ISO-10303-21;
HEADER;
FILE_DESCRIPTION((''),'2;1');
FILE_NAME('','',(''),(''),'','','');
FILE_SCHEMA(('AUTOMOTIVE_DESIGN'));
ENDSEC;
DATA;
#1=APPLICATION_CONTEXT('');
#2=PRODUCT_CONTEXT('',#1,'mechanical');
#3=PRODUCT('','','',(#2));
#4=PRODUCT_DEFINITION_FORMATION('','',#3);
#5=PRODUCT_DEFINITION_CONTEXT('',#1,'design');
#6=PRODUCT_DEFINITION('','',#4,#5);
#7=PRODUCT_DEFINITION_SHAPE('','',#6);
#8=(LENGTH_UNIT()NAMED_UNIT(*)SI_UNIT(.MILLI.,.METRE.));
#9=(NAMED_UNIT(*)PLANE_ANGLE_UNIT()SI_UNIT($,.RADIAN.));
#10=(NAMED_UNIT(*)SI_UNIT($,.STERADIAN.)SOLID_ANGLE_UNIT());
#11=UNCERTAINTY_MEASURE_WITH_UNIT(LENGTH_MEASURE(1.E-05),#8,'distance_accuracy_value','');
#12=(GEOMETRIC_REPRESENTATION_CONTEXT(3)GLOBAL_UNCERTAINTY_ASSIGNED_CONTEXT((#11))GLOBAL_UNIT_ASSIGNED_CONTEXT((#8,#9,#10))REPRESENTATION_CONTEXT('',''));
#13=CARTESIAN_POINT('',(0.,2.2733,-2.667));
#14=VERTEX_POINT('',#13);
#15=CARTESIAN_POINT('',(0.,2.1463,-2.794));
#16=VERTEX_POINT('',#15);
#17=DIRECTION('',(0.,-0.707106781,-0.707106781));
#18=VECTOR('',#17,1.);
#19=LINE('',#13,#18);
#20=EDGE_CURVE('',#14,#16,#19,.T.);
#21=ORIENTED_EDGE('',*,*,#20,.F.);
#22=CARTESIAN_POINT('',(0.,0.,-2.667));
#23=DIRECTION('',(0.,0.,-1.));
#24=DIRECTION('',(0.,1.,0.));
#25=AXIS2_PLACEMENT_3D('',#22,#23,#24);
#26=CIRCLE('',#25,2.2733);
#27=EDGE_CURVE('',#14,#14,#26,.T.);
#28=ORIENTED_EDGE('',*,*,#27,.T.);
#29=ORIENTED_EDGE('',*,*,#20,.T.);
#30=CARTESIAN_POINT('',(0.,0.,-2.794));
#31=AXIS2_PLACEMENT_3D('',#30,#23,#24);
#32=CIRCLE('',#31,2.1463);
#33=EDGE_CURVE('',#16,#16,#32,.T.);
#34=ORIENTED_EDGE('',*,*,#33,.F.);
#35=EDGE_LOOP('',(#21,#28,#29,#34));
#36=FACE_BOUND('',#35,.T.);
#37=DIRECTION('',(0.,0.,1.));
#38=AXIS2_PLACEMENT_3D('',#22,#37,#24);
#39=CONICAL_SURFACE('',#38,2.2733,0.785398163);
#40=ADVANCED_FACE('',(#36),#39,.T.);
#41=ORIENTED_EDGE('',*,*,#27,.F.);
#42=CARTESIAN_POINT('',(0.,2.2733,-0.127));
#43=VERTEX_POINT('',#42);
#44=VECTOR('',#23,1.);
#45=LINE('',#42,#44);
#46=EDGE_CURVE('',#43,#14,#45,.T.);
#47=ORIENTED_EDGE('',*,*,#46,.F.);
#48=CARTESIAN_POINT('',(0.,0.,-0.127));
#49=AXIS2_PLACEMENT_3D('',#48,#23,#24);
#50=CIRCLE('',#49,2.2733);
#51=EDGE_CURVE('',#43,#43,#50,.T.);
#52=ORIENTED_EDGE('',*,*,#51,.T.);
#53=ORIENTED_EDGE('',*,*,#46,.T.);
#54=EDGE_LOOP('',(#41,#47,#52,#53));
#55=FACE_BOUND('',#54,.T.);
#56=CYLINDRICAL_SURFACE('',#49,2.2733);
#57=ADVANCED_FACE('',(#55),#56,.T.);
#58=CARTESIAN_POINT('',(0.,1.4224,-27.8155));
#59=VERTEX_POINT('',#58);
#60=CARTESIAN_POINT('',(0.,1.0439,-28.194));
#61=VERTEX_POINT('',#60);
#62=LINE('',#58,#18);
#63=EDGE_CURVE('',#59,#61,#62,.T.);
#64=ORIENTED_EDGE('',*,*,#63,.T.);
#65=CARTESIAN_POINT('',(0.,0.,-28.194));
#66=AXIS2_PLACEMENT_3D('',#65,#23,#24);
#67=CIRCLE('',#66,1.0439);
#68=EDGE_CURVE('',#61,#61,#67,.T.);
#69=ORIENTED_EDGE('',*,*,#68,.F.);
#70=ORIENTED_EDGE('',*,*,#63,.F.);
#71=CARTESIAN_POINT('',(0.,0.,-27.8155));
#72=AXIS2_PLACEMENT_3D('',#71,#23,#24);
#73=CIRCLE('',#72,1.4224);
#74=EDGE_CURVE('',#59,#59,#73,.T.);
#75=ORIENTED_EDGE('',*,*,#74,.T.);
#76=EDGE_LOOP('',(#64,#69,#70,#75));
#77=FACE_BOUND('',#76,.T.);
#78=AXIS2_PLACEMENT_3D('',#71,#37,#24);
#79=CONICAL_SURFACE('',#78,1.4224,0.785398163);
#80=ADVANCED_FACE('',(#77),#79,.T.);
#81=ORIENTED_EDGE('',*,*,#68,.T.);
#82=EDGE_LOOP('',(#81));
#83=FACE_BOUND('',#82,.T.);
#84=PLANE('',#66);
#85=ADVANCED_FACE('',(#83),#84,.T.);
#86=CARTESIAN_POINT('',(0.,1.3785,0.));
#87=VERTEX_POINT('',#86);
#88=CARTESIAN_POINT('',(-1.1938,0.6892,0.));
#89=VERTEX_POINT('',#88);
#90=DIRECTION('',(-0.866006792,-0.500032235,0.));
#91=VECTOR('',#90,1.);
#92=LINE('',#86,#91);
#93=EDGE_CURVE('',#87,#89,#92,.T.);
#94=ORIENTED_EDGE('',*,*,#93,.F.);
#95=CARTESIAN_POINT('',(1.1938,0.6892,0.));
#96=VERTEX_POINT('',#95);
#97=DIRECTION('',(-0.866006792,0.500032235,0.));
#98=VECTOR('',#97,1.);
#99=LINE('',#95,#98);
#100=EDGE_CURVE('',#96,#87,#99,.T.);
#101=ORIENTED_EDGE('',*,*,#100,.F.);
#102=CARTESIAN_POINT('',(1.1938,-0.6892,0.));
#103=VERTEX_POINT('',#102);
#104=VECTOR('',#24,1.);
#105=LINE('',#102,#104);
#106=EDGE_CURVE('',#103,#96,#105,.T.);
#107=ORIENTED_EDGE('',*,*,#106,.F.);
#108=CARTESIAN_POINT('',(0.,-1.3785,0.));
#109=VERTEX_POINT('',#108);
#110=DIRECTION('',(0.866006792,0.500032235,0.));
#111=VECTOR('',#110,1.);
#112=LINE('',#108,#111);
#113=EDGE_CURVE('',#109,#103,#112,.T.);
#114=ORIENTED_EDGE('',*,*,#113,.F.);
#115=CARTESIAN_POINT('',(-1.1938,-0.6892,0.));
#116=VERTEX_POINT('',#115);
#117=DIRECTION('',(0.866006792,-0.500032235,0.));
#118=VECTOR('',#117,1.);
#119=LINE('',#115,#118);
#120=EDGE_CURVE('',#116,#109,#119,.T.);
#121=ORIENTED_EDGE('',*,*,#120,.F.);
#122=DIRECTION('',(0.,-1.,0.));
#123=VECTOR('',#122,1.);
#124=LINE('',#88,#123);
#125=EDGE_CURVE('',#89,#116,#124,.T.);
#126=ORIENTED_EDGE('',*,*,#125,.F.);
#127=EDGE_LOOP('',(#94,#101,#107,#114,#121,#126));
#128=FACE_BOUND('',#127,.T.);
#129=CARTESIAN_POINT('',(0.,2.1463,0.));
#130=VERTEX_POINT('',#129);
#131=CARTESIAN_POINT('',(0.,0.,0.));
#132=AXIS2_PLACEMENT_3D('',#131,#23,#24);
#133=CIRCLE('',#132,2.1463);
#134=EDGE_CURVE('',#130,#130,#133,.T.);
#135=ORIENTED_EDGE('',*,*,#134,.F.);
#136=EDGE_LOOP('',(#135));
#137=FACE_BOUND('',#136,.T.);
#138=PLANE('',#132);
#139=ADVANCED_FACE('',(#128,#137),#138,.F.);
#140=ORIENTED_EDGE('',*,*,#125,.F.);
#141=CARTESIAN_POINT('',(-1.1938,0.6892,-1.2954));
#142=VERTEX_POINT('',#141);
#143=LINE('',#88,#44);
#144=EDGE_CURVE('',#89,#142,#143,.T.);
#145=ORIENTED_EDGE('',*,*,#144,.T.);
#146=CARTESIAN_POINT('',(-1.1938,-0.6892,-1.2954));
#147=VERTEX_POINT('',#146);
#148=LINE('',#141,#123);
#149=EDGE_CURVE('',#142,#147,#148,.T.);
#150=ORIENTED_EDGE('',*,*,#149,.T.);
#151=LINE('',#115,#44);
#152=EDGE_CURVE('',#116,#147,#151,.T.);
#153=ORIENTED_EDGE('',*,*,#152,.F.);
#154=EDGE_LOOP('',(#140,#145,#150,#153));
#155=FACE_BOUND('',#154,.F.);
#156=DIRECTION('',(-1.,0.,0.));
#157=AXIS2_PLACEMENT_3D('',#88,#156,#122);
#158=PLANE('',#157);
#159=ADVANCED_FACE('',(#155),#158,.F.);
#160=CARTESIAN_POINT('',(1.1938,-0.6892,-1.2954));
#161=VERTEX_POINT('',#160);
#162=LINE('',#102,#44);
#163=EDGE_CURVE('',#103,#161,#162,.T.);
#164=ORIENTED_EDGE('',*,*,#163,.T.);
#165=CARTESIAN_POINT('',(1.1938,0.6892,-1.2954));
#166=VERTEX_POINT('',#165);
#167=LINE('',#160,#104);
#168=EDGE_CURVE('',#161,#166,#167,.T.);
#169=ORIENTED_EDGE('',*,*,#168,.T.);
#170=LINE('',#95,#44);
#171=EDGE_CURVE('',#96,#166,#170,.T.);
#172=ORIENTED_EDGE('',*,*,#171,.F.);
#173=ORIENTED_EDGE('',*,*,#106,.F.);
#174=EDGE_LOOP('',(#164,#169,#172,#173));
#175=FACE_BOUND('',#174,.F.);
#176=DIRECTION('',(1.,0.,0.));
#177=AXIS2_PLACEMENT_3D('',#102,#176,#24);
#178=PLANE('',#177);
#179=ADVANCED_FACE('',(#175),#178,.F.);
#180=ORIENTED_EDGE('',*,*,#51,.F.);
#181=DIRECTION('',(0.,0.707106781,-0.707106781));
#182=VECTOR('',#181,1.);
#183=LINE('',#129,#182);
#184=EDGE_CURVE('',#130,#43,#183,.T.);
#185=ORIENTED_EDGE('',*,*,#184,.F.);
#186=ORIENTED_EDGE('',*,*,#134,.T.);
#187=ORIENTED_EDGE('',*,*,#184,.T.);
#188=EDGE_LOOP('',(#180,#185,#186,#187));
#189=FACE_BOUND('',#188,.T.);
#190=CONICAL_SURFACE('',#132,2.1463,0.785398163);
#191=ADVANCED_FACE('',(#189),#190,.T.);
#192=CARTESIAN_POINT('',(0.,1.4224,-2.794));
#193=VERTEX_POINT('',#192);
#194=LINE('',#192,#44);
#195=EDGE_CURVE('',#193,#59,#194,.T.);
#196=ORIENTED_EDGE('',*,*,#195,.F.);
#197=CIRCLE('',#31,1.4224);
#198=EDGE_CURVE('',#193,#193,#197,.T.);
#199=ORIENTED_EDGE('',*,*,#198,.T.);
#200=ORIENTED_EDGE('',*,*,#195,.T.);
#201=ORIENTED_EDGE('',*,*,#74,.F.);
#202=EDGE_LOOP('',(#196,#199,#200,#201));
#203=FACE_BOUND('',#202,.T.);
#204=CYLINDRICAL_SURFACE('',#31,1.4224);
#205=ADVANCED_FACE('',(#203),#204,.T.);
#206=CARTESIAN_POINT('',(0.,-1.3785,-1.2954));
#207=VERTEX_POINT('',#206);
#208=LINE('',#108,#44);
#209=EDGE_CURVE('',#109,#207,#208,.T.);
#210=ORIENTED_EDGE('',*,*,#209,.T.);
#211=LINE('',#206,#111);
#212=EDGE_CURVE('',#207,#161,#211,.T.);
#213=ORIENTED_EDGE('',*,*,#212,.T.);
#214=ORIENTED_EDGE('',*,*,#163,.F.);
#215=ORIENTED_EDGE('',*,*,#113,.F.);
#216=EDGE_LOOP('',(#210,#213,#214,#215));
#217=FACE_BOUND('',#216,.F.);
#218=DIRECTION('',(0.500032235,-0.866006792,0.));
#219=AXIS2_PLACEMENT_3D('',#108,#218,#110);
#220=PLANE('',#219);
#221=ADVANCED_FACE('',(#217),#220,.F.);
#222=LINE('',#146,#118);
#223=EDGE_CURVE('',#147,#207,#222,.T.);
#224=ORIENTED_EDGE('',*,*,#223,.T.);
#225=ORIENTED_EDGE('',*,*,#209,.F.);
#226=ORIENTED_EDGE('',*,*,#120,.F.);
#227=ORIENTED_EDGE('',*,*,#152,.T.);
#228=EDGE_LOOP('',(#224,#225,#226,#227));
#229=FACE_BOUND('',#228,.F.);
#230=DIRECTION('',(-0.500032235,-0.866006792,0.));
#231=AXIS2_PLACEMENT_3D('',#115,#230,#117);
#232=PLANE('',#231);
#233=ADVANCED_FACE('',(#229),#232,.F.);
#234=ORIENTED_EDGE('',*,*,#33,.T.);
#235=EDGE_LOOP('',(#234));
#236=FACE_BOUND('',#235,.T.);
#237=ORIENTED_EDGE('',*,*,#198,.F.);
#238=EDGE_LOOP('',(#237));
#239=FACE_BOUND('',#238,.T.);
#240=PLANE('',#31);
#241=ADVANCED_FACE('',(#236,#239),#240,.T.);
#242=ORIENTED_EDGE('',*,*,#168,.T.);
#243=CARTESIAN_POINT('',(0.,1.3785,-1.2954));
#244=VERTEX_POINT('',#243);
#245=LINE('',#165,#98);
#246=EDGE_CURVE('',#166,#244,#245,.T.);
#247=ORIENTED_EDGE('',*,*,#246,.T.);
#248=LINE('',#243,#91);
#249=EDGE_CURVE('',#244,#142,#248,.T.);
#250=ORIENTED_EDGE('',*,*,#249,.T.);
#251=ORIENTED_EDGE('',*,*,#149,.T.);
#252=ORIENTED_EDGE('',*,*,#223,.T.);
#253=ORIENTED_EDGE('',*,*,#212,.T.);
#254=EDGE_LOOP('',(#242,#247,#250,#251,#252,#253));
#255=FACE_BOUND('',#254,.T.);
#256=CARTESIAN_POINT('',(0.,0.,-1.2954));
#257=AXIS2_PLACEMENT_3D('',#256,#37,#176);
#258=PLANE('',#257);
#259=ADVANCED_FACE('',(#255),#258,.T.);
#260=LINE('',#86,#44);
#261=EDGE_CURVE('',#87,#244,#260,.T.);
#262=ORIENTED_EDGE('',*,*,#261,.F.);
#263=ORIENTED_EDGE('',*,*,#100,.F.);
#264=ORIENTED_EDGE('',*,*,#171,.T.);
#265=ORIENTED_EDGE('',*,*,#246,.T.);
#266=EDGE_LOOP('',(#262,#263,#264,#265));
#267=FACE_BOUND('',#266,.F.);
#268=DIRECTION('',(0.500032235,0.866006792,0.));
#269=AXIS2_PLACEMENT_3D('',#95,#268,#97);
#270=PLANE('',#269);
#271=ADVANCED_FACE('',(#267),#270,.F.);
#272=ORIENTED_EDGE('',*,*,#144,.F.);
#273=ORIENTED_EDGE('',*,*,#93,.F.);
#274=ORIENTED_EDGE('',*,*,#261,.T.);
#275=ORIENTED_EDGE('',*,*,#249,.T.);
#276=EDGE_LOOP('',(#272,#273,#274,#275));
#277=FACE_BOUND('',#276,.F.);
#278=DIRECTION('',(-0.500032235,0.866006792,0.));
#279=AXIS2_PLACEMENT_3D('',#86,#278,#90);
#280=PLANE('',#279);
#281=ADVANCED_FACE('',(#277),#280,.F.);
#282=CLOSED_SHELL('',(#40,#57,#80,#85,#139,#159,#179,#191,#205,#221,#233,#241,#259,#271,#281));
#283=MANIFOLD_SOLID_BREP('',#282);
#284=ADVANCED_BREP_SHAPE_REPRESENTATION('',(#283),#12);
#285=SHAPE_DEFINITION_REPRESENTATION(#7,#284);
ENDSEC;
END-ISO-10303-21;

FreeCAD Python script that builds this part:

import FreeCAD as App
import Part
import Sketcher
from FreeCAD import Vector
Q = App.Units.Quantity


def add_polygon(sketch, points):
    """Adds a closed chain of lines whose ends are joined by coincident constraints."""
    first, n = sketch.GeometryCount, len(points)
    for a, b in zip(points, points[1:] + points[:1]):
        sketch.addGeometry(Part.LineSegment(App.Vector(*a, 0), App.Vector(*b, 0)), False)
    for i in range(n):
        sketch.addConstraint(Sketcher.Constraint("Coincident", first + i, 2, first + (i + 1) % n, 1))

doc = App.newDocument("Part")
params = doc.addObject("Spreadsheet::Sheet", "Params")
for row, (alias, value) in enumerate([
    ("sketch1_height", "0.1 in"),
    ("sketch1_height2", "1.11 in"),
    ("revolution_angle", "360 deg"),
    ("pocket1_length", "0.051 in"),
], start=1):
    params.set(f"A{row}", alias)
    params.set(f"B{row}", "=" + value)
    params.setAlias(f"B{row}", alias)

body = doc.addObject("PartDesign::Body", "Body")

sketch1 = body.newObject("Sketcher::SketchObject", "Sketch")
sketch1.AttachmentSupport = (doc.getObject("YZ_Plane"), [""])
sketch1.MapMode = "FlatFace"
add_polygon(sketch1, [(0, 0), (0, -28.19), (1.04, -28.19), (1.42, -27.82), (1.42, -2.79), (2.15, -2.79), (2.27, -2.67), (2.27, -0.13), (2.15, 0)])
sketch1.addConstraint([
    Sketcher.Constraint("Vertical", 0),
    Sketcher.Constraint("Horizontal", 1),
    Sketcher.Constraint("Vertical", 3),
    Sketcher.Constraint("Horizontal", 4),
    Sketcher.Constraint("Vertical", 6),
    Sketcher.Constraint("Horizontal", 8),
    Sketcher.Constraint("Coincident", 8, 2, -1, 1),
    Sketcher.Constraint("Parallel", 2, 5),
    Sketcher.Constraint("Perpendicular", 5, 7),
    Sketcher.Constraint("Vertical", 4, 2, 7, 2),
    Sketcher.Constraint("Equal", 5, 7),
    Sketcher.Constraint("DistanceY", 6, 1, 6, 2, Q("0.1 in")),
    Sketcher.Constraint("DistanceY", 1, 2, 3, 2, Q("1 in")),
    Sketcher.Constraint("DistanceY", 0, 2, 0, 1, Q("1.11 in")),
    Sketcher.Constraint("DistanceX", 1, 1, 1, 2, Q("0.0411 in")),
    Sketcher.Constraint("DistanceX", 4, 1, 4, 2, Q("0.0285 in")),
    Sketcher.Constraint("DistanceX", 8, 2, 8, 1, Q("0.0845 in")),
])
sketch1.setExpression("Constraints[20]", "Params.sketch1_height")
sketch1.setExpression("Constraints[22]", "Params.sketch1_height2")
revolution = body.newObject("PartDesign::Revolution", "Revolution")
revolution.Profile = sketch1
revolution.ReferenceAxis = (sketch1, ["V_Axis"])
revolution.setExpression("Angle", "Params.revolution_angle")

sketch2 = body.newObject("Sketcher::SketchObject", "Sketch001")
sketch2.AttachmentSupport = (doc.getObject("XY_Plane"), [""])
sketch2.MapMode = "FlatFace"
add_polygon(sketch2, [(-1.2, 0.7), (-1.2, -0.7), (0, -1.4), (1.2, -0.7), (1.2, 0.7), (0, 1.4)])
sketch2.addConstraint([
    Sketcher.Constraint("Vertical", 0),
    Sketcher.Constraint("Vertical", 3),
    Sketcher.Constraint("Symmetric", 0, 2, 3, 2, -1, 1),
    Sketcher.Constraint("Symmetric", 1, 2, 4, 2, -1, 1),
    Sketcher.Constraint("PointOnObject", 1, 2, -2),
    Sketcher.Constraint("Parallel", 2, 5),
    Sketcher.Constraint("Horizontal", 0, 2, 2, 2),
    Sketcher.Constraint("DistanceX", 0, 2, -1, 1, Q("0.047 in")),
    Sketcher.Constraint("DistanceY", 0, 2, 0, 1, 1.3784),
    Sketcher.Constraint("DistanceY", 1, 2, 3, 2, Q("0.0814 in")),
])
pocket1 = body.newObject("PartDesign::Pocket", "Pocket")
pocket1.Profile = sketch2
pocket1.setExpression("Length", "Params.pocket1_length")

doc.recompute()
